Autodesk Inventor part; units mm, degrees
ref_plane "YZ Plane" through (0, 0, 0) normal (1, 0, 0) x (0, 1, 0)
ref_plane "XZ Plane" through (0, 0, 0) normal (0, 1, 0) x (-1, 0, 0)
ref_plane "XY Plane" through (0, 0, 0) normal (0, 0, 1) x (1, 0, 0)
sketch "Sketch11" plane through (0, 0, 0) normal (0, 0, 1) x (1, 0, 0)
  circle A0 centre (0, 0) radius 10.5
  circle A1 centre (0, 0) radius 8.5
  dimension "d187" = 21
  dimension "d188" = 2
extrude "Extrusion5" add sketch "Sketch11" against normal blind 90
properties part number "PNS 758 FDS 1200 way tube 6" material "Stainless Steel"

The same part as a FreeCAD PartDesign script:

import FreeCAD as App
import Part
import Sketcher
from FreeCAD import Vector
Q = App.Units.Quantity

doc = App.newDocument("Part")
body = doc.addObject("PartDesign::Body", "Body")

sketch1 = body.newObject("Sketcher::SketchObject", "Sketch")
sketch1.AttachmentSupport = (doc.getObject("XY_Plane"), [""])
sketch1.MapMode = "FlatFace"
sketch1.addGeometry(Part.Circle(Vector(0, 0, 0), Vector(0, 0, 1), 10.5), False)
sketch1.addGeometry(Part.Circle(Vector(0, 0, 0), Vector(0, 0, 1), 8.5), False)
sketch1.addConstraint(Sketcher.Constraint("Coincident", 0, 3, -1, 1))
sketch1.addConstraint(Sketcher.Constraint("Coincident", 1, 3, -1, 1))
sketch1.addConstraint(Sketcher.Constraint("Diameter", 0, Q("21 mm")))
sketch1.addConstraint(Sketcher.Constraint("Diameter", 1, Q("17 mm")))
pad1 = body.newObject("PartDesign::Pad", "Pad")
pad1.Profile = sketch1
pad1.Length = 90
pad1.Reversed = True

doc.recompute()
